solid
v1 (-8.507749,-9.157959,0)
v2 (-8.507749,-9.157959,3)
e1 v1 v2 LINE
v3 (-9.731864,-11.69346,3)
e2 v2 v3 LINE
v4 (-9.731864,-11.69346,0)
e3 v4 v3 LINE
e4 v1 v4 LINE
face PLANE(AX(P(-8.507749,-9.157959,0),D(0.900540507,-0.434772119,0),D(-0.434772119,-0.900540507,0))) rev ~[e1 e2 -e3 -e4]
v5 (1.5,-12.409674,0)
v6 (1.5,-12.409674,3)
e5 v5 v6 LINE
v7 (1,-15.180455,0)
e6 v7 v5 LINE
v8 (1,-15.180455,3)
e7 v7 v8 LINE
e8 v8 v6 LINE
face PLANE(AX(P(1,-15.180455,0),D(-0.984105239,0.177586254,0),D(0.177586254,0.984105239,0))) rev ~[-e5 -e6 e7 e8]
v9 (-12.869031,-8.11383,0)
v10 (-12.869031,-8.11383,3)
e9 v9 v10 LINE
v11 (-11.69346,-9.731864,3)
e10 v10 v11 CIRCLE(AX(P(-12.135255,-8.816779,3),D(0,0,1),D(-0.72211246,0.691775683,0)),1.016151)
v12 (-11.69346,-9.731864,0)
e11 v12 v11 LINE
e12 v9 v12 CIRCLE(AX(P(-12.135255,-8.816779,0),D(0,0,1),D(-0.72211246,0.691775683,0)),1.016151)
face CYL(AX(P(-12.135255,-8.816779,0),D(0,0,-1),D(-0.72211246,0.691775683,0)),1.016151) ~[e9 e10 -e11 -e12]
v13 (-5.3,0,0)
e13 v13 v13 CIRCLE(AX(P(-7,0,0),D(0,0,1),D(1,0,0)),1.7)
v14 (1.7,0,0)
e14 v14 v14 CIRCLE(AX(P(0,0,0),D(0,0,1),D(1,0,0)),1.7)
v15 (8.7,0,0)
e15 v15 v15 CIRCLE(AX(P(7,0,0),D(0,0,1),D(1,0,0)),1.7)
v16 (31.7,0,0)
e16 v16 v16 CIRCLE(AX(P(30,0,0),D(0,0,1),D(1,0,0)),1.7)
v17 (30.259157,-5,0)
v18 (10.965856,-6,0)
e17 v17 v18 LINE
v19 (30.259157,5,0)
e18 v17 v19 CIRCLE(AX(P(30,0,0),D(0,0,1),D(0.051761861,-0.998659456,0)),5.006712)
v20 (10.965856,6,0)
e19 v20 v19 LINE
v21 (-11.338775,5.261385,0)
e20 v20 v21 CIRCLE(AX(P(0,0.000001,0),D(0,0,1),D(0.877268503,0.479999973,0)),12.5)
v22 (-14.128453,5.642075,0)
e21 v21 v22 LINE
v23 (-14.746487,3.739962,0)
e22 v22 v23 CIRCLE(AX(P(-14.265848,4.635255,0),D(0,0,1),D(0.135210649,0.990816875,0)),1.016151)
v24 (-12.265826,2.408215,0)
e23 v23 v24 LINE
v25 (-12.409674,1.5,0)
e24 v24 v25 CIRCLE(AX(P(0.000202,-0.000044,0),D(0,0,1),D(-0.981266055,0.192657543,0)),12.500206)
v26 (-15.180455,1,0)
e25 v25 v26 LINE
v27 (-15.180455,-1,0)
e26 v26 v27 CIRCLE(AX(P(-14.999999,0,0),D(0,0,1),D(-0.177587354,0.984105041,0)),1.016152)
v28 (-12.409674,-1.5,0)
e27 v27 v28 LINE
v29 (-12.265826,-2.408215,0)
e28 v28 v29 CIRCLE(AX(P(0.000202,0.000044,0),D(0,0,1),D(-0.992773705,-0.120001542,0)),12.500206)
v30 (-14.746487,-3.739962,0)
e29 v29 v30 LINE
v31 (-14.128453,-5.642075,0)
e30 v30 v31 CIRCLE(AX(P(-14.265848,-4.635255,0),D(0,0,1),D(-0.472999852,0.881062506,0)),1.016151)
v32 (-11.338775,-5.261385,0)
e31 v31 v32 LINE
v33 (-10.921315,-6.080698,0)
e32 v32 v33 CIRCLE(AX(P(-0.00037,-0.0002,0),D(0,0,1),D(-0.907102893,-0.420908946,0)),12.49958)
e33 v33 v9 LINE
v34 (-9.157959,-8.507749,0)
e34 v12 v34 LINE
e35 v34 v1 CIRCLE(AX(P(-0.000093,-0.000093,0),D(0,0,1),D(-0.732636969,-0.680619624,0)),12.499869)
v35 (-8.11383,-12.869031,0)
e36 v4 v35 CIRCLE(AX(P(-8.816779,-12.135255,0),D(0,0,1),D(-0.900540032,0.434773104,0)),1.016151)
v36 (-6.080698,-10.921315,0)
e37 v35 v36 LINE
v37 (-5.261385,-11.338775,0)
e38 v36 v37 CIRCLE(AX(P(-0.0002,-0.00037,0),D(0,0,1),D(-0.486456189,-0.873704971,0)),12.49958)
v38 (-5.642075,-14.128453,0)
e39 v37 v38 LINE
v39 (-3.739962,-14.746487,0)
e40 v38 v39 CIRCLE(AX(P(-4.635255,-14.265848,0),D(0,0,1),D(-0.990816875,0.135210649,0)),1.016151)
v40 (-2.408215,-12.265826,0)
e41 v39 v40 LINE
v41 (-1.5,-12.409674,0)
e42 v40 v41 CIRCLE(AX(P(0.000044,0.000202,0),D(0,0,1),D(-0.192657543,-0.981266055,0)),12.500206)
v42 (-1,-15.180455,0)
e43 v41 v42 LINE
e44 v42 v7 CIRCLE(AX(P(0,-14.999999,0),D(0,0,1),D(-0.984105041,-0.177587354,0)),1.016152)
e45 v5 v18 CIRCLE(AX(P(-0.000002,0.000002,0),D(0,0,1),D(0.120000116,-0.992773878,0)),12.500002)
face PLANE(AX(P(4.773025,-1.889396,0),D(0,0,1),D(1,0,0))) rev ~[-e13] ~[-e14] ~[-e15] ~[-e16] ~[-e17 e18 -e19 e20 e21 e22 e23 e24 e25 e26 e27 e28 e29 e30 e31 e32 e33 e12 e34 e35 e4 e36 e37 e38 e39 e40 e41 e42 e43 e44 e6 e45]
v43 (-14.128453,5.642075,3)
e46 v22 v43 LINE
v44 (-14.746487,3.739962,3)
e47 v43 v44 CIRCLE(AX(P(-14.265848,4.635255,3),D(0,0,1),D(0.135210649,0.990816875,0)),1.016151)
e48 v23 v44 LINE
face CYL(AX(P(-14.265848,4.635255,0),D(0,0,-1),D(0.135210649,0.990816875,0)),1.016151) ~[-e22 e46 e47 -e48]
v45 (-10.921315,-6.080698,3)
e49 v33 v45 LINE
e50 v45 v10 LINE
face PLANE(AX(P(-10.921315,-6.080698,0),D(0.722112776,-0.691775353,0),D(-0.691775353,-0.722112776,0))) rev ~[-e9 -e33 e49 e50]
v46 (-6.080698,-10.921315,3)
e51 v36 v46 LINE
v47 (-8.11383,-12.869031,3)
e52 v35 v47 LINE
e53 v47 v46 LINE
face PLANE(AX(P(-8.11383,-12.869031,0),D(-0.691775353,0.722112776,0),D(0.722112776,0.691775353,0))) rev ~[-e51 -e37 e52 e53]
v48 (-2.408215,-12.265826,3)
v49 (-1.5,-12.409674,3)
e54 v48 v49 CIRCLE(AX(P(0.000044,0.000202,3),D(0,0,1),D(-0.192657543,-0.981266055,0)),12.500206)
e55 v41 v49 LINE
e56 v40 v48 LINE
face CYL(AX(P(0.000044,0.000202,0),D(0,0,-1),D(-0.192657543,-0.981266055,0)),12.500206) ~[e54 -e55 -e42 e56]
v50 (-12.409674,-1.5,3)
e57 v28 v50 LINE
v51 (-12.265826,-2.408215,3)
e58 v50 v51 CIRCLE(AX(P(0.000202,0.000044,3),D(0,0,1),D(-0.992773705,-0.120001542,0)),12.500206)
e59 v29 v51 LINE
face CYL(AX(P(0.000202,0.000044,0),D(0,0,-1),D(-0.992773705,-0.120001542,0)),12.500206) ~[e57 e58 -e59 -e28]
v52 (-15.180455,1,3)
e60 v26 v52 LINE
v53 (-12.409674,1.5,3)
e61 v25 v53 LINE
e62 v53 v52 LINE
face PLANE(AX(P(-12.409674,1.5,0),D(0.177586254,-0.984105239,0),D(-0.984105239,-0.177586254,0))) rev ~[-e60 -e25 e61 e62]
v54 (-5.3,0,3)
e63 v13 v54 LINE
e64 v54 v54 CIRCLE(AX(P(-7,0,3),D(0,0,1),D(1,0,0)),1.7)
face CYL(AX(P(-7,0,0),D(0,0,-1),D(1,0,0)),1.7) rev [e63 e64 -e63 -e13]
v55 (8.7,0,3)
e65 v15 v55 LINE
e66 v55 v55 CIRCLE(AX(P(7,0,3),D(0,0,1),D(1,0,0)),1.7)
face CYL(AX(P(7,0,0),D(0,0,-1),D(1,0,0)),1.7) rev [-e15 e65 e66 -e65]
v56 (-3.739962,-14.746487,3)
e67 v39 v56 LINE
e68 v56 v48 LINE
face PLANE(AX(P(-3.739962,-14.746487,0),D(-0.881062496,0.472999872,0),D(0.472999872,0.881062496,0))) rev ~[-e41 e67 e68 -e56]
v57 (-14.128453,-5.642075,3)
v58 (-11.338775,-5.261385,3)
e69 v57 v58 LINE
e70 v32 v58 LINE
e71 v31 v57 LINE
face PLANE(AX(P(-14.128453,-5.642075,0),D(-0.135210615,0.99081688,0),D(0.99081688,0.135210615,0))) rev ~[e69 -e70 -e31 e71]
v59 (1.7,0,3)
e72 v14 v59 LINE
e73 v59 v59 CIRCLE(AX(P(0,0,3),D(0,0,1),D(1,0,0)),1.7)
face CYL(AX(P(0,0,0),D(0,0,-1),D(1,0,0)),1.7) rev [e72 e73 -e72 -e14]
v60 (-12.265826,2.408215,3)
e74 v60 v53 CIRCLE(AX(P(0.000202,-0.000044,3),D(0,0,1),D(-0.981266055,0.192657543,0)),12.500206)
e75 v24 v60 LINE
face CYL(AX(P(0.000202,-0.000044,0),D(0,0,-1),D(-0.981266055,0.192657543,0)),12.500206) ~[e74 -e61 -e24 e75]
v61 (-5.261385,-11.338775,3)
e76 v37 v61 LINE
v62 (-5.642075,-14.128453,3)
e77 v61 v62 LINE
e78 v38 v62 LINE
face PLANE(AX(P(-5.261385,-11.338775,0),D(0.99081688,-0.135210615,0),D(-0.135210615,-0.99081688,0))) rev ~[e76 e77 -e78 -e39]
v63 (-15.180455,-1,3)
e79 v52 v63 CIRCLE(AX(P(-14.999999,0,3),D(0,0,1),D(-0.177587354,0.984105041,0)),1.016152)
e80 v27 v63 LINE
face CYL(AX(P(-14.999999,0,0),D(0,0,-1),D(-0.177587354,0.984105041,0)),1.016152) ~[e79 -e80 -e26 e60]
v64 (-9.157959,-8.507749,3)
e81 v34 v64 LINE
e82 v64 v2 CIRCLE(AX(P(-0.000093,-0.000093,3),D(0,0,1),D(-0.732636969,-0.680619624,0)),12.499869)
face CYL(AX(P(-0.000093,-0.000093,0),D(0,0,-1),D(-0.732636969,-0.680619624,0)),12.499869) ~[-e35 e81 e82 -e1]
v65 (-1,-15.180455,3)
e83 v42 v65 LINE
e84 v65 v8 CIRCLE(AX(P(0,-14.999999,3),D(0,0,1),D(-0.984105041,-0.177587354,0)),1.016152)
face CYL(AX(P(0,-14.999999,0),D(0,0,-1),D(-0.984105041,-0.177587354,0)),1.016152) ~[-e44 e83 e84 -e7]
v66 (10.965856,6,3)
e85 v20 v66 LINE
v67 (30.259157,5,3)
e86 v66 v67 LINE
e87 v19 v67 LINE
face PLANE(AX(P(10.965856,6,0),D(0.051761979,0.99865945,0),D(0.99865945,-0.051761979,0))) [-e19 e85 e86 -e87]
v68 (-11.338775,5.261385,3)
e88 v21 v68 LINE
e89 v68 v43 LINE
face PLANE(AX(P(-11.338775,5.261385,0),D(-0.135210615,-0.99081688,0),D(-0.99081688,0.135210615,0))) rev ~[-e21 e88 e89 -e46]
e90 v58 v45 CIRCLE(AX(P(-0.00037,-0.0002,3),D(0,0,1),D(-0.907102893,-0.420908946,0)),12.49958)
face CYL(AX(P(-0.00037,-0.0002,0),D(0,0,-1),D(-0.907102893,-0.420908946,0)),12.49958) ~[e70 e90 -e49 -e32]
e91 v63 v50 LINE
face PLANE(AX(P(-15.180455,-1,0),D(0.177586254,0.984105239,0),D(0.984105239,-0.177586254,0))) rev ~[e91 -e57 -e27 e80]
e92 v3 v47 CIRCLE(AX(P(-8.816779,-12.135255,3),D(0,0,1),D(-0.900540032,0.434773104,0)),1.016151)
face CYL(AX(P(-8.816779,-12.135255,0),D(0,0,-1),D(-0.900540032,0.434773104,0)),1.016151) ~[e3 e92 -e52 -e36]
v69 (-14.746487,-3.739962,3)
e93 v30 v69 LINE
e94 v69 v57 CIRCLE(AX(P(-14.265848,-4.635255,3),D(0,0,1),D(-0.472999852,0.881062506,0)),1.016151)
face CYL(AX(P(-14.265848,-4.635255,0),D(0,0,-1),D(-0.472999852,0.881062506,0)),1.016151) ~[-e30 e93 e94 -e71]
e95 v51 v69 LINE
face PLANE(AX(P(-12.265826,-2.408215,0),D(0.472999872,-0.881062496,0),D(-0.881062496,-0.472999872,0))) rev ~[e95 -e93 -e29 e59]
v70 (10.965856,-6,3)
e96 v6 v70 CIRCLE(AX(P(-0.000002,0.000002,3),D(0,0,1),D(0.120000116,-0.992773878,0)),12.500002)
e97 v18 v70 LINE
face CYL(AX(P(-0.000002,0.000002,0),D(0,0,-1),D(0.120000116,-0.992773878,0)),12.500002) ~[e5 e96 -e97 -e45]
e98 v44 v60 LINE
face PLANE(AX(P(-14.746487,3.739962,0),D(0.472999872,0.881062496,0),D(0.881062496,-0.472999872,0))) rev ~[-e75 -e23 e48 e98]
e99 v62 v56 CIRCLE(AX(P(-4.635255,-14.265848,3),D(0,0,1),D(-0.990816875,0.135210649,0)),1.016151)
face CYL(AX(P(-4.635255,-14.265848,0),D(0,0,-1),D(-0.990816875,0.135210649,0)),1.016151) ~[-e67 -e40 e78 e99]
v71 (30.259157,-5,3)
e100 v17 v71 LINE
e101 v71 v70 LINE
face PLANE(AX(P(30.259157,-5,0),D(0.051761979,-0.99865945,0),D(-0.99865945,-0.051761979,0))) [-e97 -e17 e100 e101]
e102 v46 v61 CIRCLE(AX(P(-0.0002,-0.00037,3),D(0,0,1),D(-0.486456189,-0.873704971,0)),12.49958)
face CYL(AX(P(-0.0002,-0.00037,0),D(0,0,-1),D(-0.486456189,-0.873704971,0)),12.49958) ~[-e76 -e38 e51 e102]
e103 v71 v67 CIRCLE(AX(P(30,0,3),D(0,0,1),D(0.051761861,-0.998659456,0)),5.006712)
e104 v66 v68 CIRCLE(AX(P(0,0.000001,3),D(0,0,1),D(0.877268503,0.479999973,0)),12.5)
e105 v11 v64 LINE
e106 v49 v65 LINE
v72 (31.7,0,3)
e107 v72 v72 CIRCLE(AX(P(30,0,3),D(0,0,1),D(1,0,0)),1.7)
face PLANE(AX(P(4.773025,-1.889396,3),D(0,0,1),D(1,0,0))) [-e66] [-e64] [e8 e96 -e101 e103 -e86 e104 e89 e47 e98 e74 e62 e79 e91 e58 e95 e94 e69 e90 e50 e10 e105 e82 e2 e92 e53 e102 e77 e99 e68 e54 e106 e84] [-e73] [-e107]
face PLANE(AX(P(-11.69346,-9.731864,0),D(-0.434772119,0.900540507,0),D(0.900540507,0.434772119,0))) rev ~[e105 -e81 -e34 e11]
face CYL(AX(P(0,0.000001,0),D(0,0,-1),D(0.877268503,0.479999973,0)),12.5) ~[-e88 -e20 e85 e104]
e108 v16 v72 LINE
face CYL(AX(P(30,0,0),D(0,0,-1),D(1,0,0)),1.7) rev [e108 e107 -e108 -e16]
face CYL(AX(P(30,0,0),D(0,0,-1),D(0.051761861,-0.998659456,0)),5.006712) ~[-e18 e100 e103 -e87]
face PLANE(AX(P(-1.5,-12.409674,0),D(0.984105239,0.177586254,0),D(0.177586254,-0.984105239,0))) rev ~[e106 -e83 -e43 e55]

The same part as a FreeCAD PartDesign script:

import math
import FreeCAD as App
import Part
import Sketcher
Q = App.Units.Quantity

doc = App.newDocument("Part")
body = doc.addObject("PartDesign::Body", "Body")

sketch1 = body.newObject("Sketcher::SketchObject", "Sketch")
sketch1.AttachmentSupport = (doc.getObject("XY_Plane"), [""])
sketch1.MapMode = "FlatFace"
sketch1.addGeometry([
    Part.ArcOfCircle(Part.Circle(App.Vector(-0.00037, -0.0002, 0), App.Vector(0, 0, 1), 12.49958), math.radians(-155.108014), math.radians(-150.892078)),
    Part.LineSegment(App.Vector(-10.921315, -6.080698, 0), App.Vector(-12.869031, -8.11383, 0)),
    Part.ArcOfCircle(Part.Circle(App.Vector(-12.135255, -8.816779, 0), App.Vector(0, 0, 1), 1.016151), math.radians(136.229166), math.radians(295.770857)),
    Part.LineSegment(App.Vector(-11.69346, -9.731864, 0), App.Vector(-9.157959, -8.507749, 0)),
    Part.ArcOfCircle(Part.Circle(App.Vector(-0.000093, -0.000093, 0), App.Vector(0, 0, 1), 12.499869), math.radians(-137.107918), math.radians(-132.892082)),
    Part.LineSegment(App.Vector(-8.507749, -9.157959, 0), App.Vector(-9.731864, -11.69346, 0)),
    Part.ArcOfCircle(Part.Circle(App.Vector(-8.816779, -12.135255, 0), App.Vector(0, 0, 1), 1.016151), math.radians(154.229143), math.radians(313.770834)),
    Part.LineSegment(App.Vector(-8.11383, -12.869031, 0), App.Vector(-6.080698, -10.921315, 0)),
    Part.ArcOfCircle(Part.Circle(App.Vector(-0.0002, -0.00037, 0), App.Vector(0, 0, 1), 12.49958), math.radians(-119.107922), math.radians(-114.891986)),
    Part.LineSegment(App.Vector(-5.261385, -11.338775, 0), App.Vector(-5.642075, -14.128453, 0)),
    Part.ArcOfCircle(Part.Circle(App.Vector(-4.635255, -14.265848, 0), App.Vector(0, 0, 1), 1.016151), math.radians(172.229199), math.radians(331.7708)),
    Part.LineSegment(App.Vector(-3.739962, -14.746487, 0), App.Vector(-2.408215, -12.265826, 0)),
    Part.ArcOfCircle(Part.Circle(App.Vector(0.000044, 0.000202, 0), App.Vector(0, 0, 1), 12.500206), math.radians(-101.107916), math.radians(-96.892192)),
    Part.LineSegment(App.Vector(-1.5, -12.409674, 0), App.Vector(-1, -15.180455, 0)),
    Part.ArcOfCircle(Part.Circle(App.Vector(0, -14.999999, 0), App.Vector(0, 0, 1), 1.016152), math.radians(-169.770739), math.radians(-10.229261)),
    Part.LineSegment(App.Vector(1, -15.180455, 0), App.Vector(1.5, -12.409674, 0)),
    Part.ArcOfCircle(Part.Circle(App.Vector(-0.000002, 0.000002, 0), App.Vector(0, 0, 1), 12.500002), math.radians(-83.107891), math.radians(-28.685405)),
    Part.LineSegment(App.Vector(10.965856, -6, 0), App.Vector(30.259157, -5, 0)),
    Part.ArcOfCircle(Part.Circle(App.Vector(30, 0, 0), App.Vector(0, 0, 1), 5.006712), math.radians(-87.032938), math.radians(87.032938)),
    Part.LineSegment(App.Vector(30.259157, 5, 0), App.Vector(10.965856, 6, 0)),
    Part.ArcOfCircle(Part.Circle(App.Vector(0, 0.000001, 0), App.Vector(0, 0, 1), 12.5), math.radians(28.6854), math.radians(155.107898)),
    Part.LineSegment(App.Vector(-11.338775, 5.261385, 0), App.Vector(-14.128453, 5.642075, 0)),
    Part.ArcOfCircle(Part.Circle(App.Vector(-14.265848, 4.635255, 0), App.Vector(0, 0, 1), 1.016151), math.radians(82.229199), math.radians(241.7708)),
    Part.LineSegment(App.Vector(-14.746487, 3.739962, 0), App.Vector(-12.265826, 2.408215, 0)),
    Part.ArcOfCircle(Part.Circle(App.Vector(0.000202, -0.000044, 0), App.Vector(0, 0, 1), 12.500206), math.radians(168.892084), math.radians(173.107808)),
    Part.LineSegment(App.Vector(-12.409674, 1.5, 0), App.Vector(-15.180455, 1, 0)),
    Part.ArcOfCircle(Part.Circle(App.Vector(-14.999999, 0, 0), App.Vector(0, 0, 1), 1.016152), math.radians(100.229261), math.radians(259.770739)),
    Part.LineSegment(App.Vector(-15.180455, -1, 0), App.Vector(-12.409674, -1.5, 0)),
    Part.ArcOfCircle(Part.Circle(App.Vector(0.000202, 0.000044, 0), App.Vector(0, 0, 1), 12.500206), math.radians(-173.107808), math.radians(-168.892084)),
    Part.LineSegment(App.Vector(-12.265826, -2.408215, 0), App.Vector(-14.746487, -3.739962, 0)),
    Part.ArcOfCircle(Part.Circle(App.Vector(-14.265848, -4.635255, 0), App.Vector(0, 0, 1), 1.016151), math.radians(118.2292), math.radians(277.770801)),
    Part.LineSegment(App.Vector(-14.128453, -5.642075, 0), App.Vector(-11.338775, -5.261385, 0)),
    Part.Circle(App.Vector(-7, 0, 0), App.Vector(0, 0, 1), 1.7),
    Part.Circle(App.Vector(0, 0, 0), App.Vector(0, 0, 1), 1.7),
    Part.Circle(App.Vector(7, 0, 0), App.Vector(0, 0, 1), 1.7),
    Part.Circle(App.Vector(30, 0, 0), App.Vector(0, 0, 1), 1.7),
], False)
sketch1.addConstraint([
    Sketcher.Constraint("Coincident", 0, 2, 1, 1),
    Sketcher.Constraint("Coincident", 1, 2, 2, 1),
    Sketcher.Constraint("Coincident", 2, 2, 3, 1),
    Sketcher.Constraint("Coincident", 3, 2, 4, 1),
    Sketcher.Constraint("Coincident", 4, 2, 5, 1),
    Sketcher.Constraint("Coincident", 5, 2, 6, 1),
    Sketcher.Constraint("Coincident", 6, 2, 7, 1),
    Sketcher.Constraint("Coincident", 7, 2, 8, 1),
    Sketcher.Constraint("Coincident", 8, 2, 9, 1),
    Sketcher.Constraint("Coincident", 9, 2, 10, 1),
    Sketcher.Constraint("Coincident", 10, 2, 11, 1),
    Sketcher.Constraint("Coincident", 11, 2, 12, 1),
    Sketcher.Constraint("Coincident", 12, 2, 13, 1),
    Sketcher.Constraint("Coincident", 13, 2, 14, 1),
    Sketcher.Constraint("Coincident", 14, 2, 15, 1),
    Sketcher.Constraint("Coincident", 15, 2, 16, 1),
    Sketcher.Constraint("Coincident", 16, 2, 17, 1),
    Sketcher.Constraint("Coincident", 17, 2, 18, 1),
    Sketcher.Constraint("Coincident", 18, 2, 19, 1),
    Sketcher.Constraint("Coincident", 19, 2, 20, 1),
    Sketcher.Constraint("Coincident", 20, 2, 21, 1),
    Sketcher.Constraint("Coincident", 21, 2, 22, 1),
    Sketcher.Constraint("Coincident", 22, 2, 23, 1),
    Sketcher.Constraint("Coincident", 23, 2, 24, 1),
    Sketcher.Constraint("Coincident", 24, 2, 25, 1),
    Sketcher.Constraint("Coincident", 25, 2, 26, 1),
    Sketcher.Constraint("Coincident", 26, 2, 27, 1),
    Sketcher.Constraint("Coincident", 27, 2, 28, 1),
    Sketcher.Constraint("Coincident", 28, 2, 29, 1),
    Sketcher.Constraint("Coincident", 29, 2, 30, 1),
    Sketcher.Constraint("Coincident", 30, 2, 31, 1),
    Sketcher.Constraint("Coincident", 31, 2, 0, 1),
    Sketcher.Constraint("Coincident", 16, 3, -1, 1),
    Sketcher.Constraint("Coincident", 20, 3, -1, 1),
    Sketcher.Constraint("Coincident", 33, 3, -1, 1),
    Sketcher.Constraint("Coincident", 35, 3, 18, 3),
    Sketcher.Constraint("PointOnObject", 14, 3, -2),
    Sketcher.Constraint("PointOnObject", 18, 3, -1),
    Sketcher.Constraint("PointOnObject", 26, 3, -1),
    Sketcher.Constraint("PointOnObject", 32, 3, -1),
    Sketcher.Constraint("PointOnObject", 34, 3, -1),
    Sketcher.Constraint("Diameter", 32, Q("3.4 mm")),
    Sketcher.Constraint("Diameter", 33, Q("3.4 mm")),
    Sketcher.Constraint("Diameter", 34, Q("3.4 mm")),
    Sketcher.Constraint("Diameter", 35, Q("3.4 mm")),
    Sketcher.Constraint("Radius", 20, Q("12.5 mm")),
    Sketcher.Constraint("DistanceY", 14, 3, -1, 1, Q("14.999999 mm")),
    Sketcher.Constraint("DistanceX", -1, 1, 18, 3, Q("30 mm")),
    Sketcher.Constraint("DistanceX", 26, 3, -1, 1, Q("14.999999 mm")),
    Sketcher.Constraint("DistanceX", 32, 3, -1, 1, Q("7 mm")),
    Sketcher.Constraint("DistanceX", -1, 1, 34, 3, Q("7 mm")),
    Sketcher.Constraint("DistanceX", 13, 2, -1, 1, Q("1 mm")),
    Sketcher.Constraint("DistanceX", -1, 1, 14, 2, Q("1 mm")),
    Sketcher.Constraint("DistanceY", 16, 2, -1, 1, Q("6 mm")),
    Sketcher.Constraint("DistanceY", 17, 2, -1, 1, Q("5 mm")),
    Sketcher.Constraint("DistanceY", -1, 1, 18, 2, Q("5 mm")),
    Sketcher.Constraint("DistanceY", -1, 1, 19, 2, Q("6 mm")),
    Sketcher.Constraint("DistanceY", -1, 1, 25, 2, Q("1 mm")),
    Sketcher.Constraint("DistanceY", 26, 2, -1, 1, Q("1 mm")),
    Sketcher.Constraint("DistanceX", 12, 2, 15, 2, Q("3 mm")),
    Sketcher.Constraint("DistanceY", 27, 2, 24, 2, Q("3 mm")),
    Sketcher.Constraint("DistanceX", 12, 2, -1, 1, Q("1.5 mm")),
    Sketcher.Constraint("DistanceY", -1, 1, 24, 2, Q("1.5 mm")),
    Sketcher.Constraint("DistanceX", 2, 3, 10, 3, Q("7.5 mm")),
    Sketcher.Constraint("DistanceY", 6, 3, 30, 3, Q("7.5 mm")),
    Sketcher.Constraint("Radius", 0, Q("12.49958 mm")),
    Sketcher.Constraint("Radius", 2, Q("1.016151 mm")),
    Sketcher.Constraint("Radius", 4, Q("12.499869 mm")),
    Sketcher.Constraint("Radius", 6, Q("1.016151 mm")),
    Sketcher.Constraint("Radius", 8, Q("12.49958 mm")),
    Sketcher.Constraint("Radius", 10, Q("1.016151 mm")),
    Sketcher.Constraint("Radius", 14, Q("1.016152 mm")),
    Sketcher.Constraint("Radius", 18, Q("5.006712 mm")),
    Sketcher.Constraint("Radius", 22, Q("1.016151 mm")),
    Sketcher.Constraint("Radius", 26, Q("1.016152 mm")),
    Sketcher.Constraint("Radius", 30, Q("1.016151 mm")),
    Sketcher.Constraint("Radius", 12, Q("12.500206 mm")),
    Sketcher.Constraint("Radius", 16, Q("12.500002 mm")),
    Sketcher.Constraint("Radius", 24, Q("12.500206 mm")),
    Sketcher.Constraint("Radius", 28, Q("12.500206 mm")),
    Sketcher.Constraint("DistanceY", 0, 3, -1, 1, Q("0.0002 mm")),
    Sketcher.Constraint("DistanceX", 8, 3, -1, 1, Q("0.0002 mm")),
    Sketcher.Constraint("DistanceX", 2, 3, 12, 3, Q("12.135299 mm")),
    Sketcher.Constraint("DistanceY", 16, 3, 12, 3, Q("0.0002 mm")),
    Sketcher.Constraint("DistanceX", 20, 3, 24, 3, Q("0.000202 mm")),
    Sketcher.Constraint("DistanceX", 20, 3, 28, 3, Q("0.000202 mm")),
    Sketcher.Constraint("DistanceX", 2, 2, 3, 2, Q("2.535501 mm")),
    Sketcher.Constraint("DistanceY", 5, 2, 4, 2, Q("2.535501 mm")),
    Sketcher.Constraint("DistanceY", 12, 2, 8, 2, Q("1.070899 mm")),
    Sketcher.Constraint("DistanceX", 24, 2, 20, 2, Q("1.070899 mm")),
    Sketcher.Constraint("DistanceX", 0, 3, -1, 1, Q("0.00037 mm")),
    Sketcher.Constraint("DistanceY", 2, 3, -1, 1, Q("8.816779 mm")),
    Sketcher.Constraint("DistanceX", 6, 3, -1, 1, Q("8.816779 mm")),
    Sketcher.Constraint("DistanceY", 8, 3, -1, 1, Q("0.00037 mm")),
    Sketcher.Constraint("DistanceX", 1, 2, -1, 1, Q("12.869031 mm")),
    Sketcher.Constraint("DistanceY", 1, 2, -1, 1, Q("8.11383 mm")),
    Sketcher.Constraint("DistanceX", 2, 2, -1, 1, Q("11.69346 mm")),
    Sketcher.Constraint("DistanceY", 3, 2, -1, 1, Q("8.507749 mm")),
    Sketcher.Constraint("DistanceX", 4, 2, -1, 1, Q("8.507749 mm")),
    Sketcher.Constraint("DistanceY", 4, 2, -1, 1, Q("9.157959 mm")),
    Sketcher.Constraint("DistanceX", 6, 2, -1, 1, Q("8.11383 mm")),
    Sketcher.Constraint("DistanceY", 6, 2, -1, 1, Q("12.869031 mm")),
    Sketcher.Constraint("DistanceY", 29, 2, -1, 1, Q("3.739962 mm")),
    Sketcher.Constraint("DistanceY", 10, 3, 2, 3, Q("5.449069 mm")),
    Sketcher.Constraint("DistanceX", 22, 3, 12, 3, Q("14.265892 mm")),
    Sketcher.Constraint("DistanceY", 28, 3, 12, 3, Q("0.000158 mm")),
    Sketcher.Constraint("DistanceX", 26, 3, 30, 3, Q("0.734152 mm")),
    Sketcher.Constraint("DistanceY", 30, 3, 22, 3, Q("9.27051 mm")),
    Sketcher.Constraint("DistanceX", 2, 3, 0, 2, Q("1.21394 mm")),
    Sketcher.Constraint("DistanceX", 6, 3, 7, 2, Q("2.736081 mm")),
    Sketcher.Constraint("DistanceX", 9, 2, 10, 3, Q("1.00682 mm")),
    Sketcher.Constraint("DistanceY", 10, 2, 10, 3, Q("0.480639 mm")),
    Sketcher.Constraint("DistanceY", 10, 2, 11, 2, Q("2.480661 mm")),
    Sketcher.Constraint("DistanceY", 22, 3, 20, 2, Q("0.62613 mm")),
    Sketcher.Constraint("DistanceY", 22, 3, 21, 2, Q("1.00682 mm")),
    Sketcher.Constraint("DistanceX", 22, 2, 22, 3, Q("0.480639 mm")),
    Sketcher.Constraint("DistanceX", 22, 2, 23, 2, Q("2.480661 mm")),
    Sketcher.Constraint("DistanceX", 30, 3, 28, 2, Q("2.000022 mm")),
    Sketcher.Constraint("DistanceY", 30, 2, 30, 3, Q("1.00682 mm")),
    Sketcher.Constraint("DistanceX", 31, 2, 0, 2, Q("0.41746 mm")),
])
pad1 = body.newObject("PartDesign::Pad", "Pad")
pad1.Profile = sketch1
pad1.Length = 3

doc.recompute()
